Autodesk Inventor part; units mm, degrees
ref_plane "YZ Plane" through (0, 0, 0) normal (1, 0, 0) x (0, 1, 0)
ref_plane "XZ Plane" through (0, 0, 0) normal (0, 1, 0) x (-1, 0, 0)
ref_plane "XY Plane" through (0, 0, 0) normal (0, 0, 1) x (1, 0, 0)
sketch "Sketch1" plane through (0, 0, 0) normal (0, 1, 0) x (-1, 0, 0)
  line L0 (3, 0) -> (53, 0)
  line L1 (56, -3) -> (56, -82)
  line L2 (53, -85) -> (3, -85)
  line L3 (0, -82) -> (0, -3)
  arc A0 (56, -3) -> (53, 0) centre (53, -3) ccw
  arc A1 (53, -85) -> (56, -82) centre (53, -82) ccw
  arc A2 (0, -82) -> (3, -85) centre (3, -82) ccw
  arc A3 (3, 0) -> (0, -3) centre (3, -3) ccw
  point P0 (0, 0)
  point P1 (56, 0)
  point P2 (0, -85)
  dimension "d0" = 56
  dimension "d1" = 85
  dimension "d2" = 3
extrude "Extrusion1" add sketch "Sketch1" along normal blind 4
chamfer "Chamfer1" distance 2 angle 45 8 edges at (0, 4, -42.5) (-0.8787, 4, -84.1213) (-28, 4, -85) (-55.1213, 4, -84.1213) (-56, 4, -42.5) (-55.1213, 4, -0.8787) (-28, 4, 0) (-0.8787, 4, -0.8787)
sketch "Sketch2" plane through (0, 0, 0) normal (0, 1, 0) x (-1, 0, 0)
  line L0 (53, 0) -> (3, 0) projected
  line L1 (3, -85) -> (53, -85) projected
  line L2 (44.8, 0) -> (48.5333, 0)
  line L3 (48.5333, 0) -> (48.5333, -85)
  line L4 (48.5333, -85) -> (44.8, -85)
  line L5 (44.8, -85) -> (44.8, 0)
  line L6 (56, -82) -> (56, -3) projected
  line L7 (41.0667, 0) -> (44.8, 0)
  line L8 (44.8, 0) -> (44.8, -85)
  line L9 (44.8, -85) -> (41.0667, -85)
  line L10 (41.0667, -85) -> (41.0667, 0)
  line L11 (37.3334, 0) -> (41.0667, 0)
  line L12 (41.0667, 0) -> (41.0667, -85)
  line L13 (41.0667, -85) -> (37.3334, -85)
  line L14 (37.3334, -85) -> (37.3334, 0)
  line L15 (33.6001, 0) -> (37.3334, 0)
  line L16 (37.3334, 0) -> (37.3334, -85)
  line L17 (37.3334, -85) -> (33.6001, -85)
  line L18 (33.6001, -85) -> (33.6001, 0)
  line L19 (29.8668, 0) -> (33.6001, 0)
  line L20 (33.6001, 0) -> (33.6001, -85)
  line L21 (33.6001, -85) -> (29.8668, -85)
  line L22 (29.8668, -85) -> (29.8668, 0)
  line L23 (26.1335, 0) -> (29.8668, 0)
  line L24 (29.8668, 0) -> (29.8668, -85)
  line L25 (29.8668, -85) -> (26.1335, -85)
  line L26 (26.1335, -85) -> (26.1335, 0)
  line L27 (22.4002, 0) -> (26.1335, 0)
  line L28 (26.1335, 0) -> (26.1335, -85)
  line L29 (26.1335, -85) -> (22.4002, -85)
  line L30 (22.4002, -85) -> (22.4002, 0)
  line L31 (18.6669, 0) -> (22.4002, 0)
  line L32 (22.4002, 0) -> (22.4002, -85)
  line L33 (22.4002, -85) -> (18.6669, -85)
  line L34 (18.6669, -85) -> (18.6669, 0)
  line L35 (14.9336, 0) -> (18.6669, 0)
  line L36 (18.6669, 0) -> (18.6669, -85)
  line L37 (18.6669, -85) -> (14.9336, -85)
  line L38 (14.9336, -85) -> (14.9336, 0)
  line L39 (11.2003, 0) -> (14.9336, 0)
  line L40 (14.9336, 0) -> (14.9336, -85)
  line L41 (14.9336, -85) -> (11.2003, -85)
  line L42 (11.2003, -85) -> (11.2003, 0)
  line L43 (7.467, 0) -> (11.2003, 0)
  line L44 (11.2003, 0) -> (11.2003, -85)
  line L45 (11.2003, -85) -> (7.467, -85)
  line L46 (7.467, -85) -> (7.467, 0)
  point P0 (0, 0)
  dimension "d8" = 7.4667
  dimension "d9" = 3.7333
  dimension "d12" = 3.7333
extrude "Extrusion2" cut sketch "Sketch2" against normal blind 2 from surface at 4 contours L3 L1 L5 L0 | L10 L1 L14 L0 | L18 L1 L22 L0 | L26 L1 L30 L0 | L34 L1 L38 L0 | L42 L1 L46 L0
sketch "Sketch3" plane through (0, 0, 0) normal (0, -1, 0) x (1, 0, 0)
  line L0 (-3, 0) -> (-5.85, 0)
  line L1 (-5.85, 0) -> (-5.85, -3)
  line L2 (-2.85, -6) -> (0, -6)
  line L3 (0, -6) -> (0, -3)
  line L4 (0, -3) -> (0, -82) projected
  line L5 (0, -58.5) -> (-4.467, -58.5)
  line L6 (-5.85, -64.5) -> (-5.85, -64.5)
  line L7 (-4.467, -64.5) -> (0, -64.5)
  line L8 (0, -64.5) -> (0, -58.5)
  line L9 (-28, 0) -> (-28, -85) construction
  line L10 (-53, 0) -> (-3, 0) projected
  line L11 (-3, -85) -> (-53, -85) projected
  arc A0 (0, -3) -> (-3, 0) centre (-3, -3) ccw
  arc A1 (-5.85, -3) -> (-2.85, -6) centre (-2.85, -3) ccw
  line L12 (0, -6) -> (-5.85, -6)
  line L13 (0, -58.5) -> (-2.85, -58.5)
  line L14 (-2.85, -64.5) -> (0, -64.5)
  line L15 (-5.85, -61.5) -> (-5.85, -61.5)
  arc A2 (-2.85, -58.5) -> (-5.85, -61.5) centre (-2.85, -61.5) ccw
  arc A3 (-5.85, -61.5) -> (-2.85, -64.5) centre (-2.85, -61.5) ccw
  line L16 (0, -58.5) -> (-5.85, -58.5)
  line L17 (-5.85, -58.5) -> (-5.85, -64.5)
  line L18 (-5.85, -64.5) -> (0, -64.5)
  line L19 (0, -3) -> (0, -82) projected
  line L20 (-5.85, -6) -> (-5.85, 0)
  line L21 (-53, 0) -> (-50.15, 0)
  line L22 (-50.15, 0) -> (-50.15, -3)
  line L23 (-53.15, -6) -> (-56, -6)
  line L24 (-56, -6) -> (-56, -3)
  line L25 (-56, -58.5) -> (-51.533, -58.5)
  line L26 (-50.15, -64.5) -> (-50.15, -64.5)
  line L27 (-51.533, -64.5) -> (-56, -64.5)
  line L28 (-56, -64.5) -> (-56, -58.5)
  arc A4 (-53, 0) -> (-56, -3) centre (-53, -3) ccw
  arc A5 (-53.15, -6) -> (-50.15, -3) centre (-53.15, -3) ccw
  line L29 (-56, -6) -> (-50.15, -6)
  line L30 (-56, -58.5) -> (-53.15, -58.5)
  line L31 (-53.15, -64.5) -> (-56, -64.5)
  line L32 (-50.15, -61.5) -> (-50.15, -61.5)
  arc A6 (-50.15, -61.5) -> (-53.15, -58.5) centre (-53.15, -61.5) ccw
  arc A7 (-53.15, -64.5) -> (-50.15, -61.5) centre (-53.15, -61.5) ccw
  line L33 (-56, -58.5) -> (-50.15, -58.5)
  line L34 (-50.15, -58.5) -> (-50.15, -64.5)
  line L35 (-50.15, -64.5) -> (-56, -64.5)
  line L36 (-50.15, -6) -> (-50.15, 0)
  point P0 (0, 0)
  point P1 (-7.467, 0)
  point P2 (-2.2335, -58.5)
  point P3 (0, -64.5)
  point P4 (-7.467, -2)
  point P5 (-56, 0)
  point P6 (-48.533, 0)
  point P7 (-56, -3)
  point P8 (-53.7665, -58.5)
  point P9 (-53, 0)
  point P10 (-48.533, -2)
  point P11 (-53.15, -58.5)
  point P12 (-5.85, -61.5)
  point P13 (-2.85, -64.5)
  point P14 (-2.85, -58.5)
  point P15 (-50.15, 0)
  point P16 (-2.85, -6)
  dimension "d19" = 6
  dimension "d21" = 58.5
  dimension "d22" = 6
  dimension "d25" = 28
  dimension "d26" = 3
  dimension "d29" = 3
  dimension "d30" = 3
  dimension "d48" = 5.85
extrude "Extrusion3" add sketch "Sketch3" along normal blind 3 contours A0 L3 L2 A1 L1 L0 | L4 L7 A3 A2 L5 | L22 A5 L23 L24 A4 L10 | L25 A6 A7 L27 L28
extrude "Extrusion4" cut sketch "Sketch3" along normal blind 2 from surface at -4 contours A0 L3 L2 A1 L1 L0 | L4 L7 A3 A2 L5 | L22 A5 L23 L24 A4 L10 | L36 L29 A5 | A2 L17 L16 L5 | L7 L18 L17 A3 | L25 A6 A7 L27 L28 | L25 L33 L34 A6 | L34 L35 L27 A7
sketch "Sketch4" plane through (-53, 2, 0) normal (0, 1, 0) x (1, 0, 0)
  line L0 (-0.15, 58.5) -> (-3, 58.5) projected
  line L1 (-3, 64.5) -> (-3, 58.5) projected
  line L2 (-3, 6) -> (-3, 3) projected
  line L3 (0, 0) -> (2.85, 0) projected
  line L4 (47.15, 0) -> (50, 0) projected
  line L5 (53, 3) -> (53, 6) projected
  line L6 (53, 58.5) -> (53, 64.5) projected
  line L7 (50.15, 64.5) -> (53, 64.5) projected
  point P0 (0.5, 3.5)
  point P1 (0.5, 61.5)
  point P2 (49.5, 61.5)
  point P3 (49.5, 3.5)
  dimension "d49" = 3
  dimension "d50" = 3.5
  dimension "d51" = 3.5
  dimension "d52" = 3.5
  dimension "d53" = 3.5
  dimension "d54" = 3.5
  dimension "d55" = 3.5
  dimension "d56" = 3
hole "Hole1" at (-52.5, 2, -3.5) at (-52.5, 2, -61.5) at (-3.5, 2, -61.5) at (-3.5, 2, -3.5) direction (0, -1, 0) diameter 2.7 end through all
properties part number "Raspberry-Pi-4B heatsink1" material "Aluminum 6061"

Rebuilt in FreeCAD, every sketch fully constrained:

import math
import FreeCAD as App
import Part
import Sketcher
from FreeCAD import Vector
Q = App.Units.Quantity


def edges_at(feature, points):
    """Names of the edges that pass closest to the given points."""
    edges = feature.Shape.Edges
    near = lambda p: min(range(len(edges)), key=lambda i: edges[i].distToShape(Part.Vertex(*p))[0])
    return sorted({f"Edge{near(p) + 1}" for p in points})


def add_polygon(sketch, points):
    """Adds a closed chain of lines whose ends are joined by coincident constraints."""
    first, n = sketch.GeometryCount, len(points)
    for a, b in zip(points, points[1:] + points[:1]):
        sketch.addGeometry(Part.LineSegment(App.Vector(*a, 0), App.Vector(*b, 0)), False)
    for i in range(n):
        sketch.addConstraint(Sketcher.Constraint("Coincident", first + i, 2, first + (i + 1) % n, 1))

doc = App.newDocument("Part")
body = doc.addObject("PartDesign::Body", "Body")

sketch1 = doc.addObject("Sketcher::SketchObject", "Sketch")
body.addObject(sketch1)
sketch1.AttachmentSupport = (doc.XZ_Plane, [""])
sketch1.MapMode = "FlatFace"
sketch1.addGeometry(Part.LineSegment(Vector(-53, 0, 0), Vector(-3, 0, 0)), False)
sketch1.addGeometry(Part.ArcOfCircle(Part.Circle(Vector(-3, -3, 0), Vector(0, 0, 1), 3), math.radians(0), math.radians(90)), False)
sketch1.addGeometry(Part.LineSegment(Vector(0, -3, 0), Vector(0, -82, 0)), False)
sketch1.addGeometry(Part.ArcOfCircle(Part.Circle(Vector(-3, -82, 0), Vector(0, 0, 1), 3), math.radians(-90), math.radians(0)), False)
sketch1.addGeometry(Part.LineSegment(Vector(-3, -85, 0), Vector(-53, -85, 0)), False)
sketch1.addGeometry(Part.ArcOfCircle(Part.Circle(Vector(-53, -82, 0), Vector(0, 0, 1), 3), math.radians(180), math.radians(270)), False)
sketch1.addGeometry(Part.LineSegment(Vector(-56, -82, 0), Vector(-56, -3, 0)), False)
sketch1.addGeometry(Part.ArcOfCircle(Part.Circle(Vector(-53, -3, 0), Vector(0, 0, 1), 3), math.radians(90), math.radians(180)), False)
sketch1.addConstraint(Sketcher.Constraint("Tangent", 0, 2, 1, 2))
sketch1.addConstraint(Sketcher.Constraint("Tangent", 1, 1, 2, 1))
sketch1.addConstraint(Sketcher.Constraint("Tangent", 2, 2, 3, 2))
sketch1.addConstraint(Sketcher.Constraint("Tangent", 3, 1, 4, 1))
sketch1.addConstraint(Sketcher.Constraint("Tangent", 4, 2, 5, 2))
sketch1.addConstraint(Sketcher.Constraint("Tangent", 5, 1, 6, 1))
sketch1.addConstraint(Sketcher.Constraint("Tangent", 6, 2, 7, 2))
sketch1.addConstraint(Sketcher.Constraint("Tangent", 7, 1, 0, 1))
sketch1.addConstraint(Sketcher.Constraint("Horizontal", 0))
sketch1.addConstraint(Sketcher.Constraint("Vertical", 2))
sketch1.addConstraint(Sketcher.Constraint("Horizontal", 4))
sketch1.addConstraint(Sketcher.Constraint("Vertical", 6))
sketch1.addConstraint(Sketcher.Constraint("Equal", 1, 3))
sketch1.addConstraint(Sketcher.Constraint("Equal", 3, 5))
sketch1.addConstraint(Sketcher.Constraint("Equal", 5, 7))
sketch1.addConstraint(Sketcher.Constraint("PointOnObject", 0, 2, -1))
sketch1.addConstraint(Sketcher.Constraint("PointOnObject", 1, 1, -2))
sketch1.addConstraint(Sketcher.Constraint("Radius", 1, Q("3 mm")))
sketch1.addConstraint(Sketcher.Constraint("DistanceY", 3, 1, -1, 1, Q("85 mm")))
sketch1.addConstraint(Sketcher.Constraint("DistanceX", 5, 1, -1, 1, Q("56 mm")))
pad1 = doc.addObject("PartDesign::Pad", "Pad")
body.addObject(pad1)
pad1.Profile = sketch1
pad1.Length = 4
pad1.Reversed = True
doc.recompute()

chamfer = doc.addObject("PartDesign::Chamfer", "Chamfer")
body.addObject(chamfer)
chamfer.Base = (pad1, edges_at(pad1, [
    (0, 4, -42.5),
    (-0.879, 4, -84.121),
    (-28, 4, -85),
    (-55.121, 4, -84.121),
    (-56, 4, -42.5),
    (-55.121, 4, -0.879),
    (-28, 4, 0),
    (-0.879, 4, -0.879),
]))
chamfer.Size = 2

sketch2 = doc.addObject("Sketcher::SketchObject", "Sketch001")
body.addObject(sketch2)
sketch2.AttachmentSupport = (doc.XZ_Plane, [""])
sketch2.MapMode = "FlatFace"
sketch2.AttachmentOffset = App.Placement(Vector(0, 0, -4), App.Rotation())
add_polygon(sketch2, [(-48.5, -85), (-48.5, 0), (-44.8, 0), (-44.8, -85)])
add_polygon(sketch2, [(-41.1, -85), (-41.1, 0), (-37.3, 0), (-37.3, -85)])
add_polygon(sketch2, [(-33.6, -85), (-33.6, 0), (-29.9, 0), (-29.9, -85)])
add_polygon(sketch2, [(-26.1, -85), (-26.1, 0), (-22.4, 0), (-22.4, -85)])
add_polygon(sketch2, [(-18.7, -85), (-18.7, 0), (-14.9, 0), (-14.9, -85)])
add_polygon(sketch2, [(-11.2, -85), (-11.2, 0), (-7.5, 0), (-7.5, -85)])
sketch2.addConstraint(Sketcher.Constraint("Vertical", 0))
sketch2.addConstraint(Sketcher.Constraint("Horizontal", 1))
sketch2.addConstraint(Sketcher.Constraint("Vertical", 2))
sketch2.addConstraint(Sketcher.Constraint("Horizontal", 3))
sketch2.addConstraint(Sketcher.Constraint("Vertical", 4))
sketch2.addConstraint(Sketcher.Constraint("Horizontal", 5))
sketch2.addConstraint(Sketcher.Constraint("Vertical", 6))
sketch2.addConstraint(Sketcher.Constraint("Horizontal", 7))
sketch2.addConstraint(Sketcher.Constraint("Vertical", 8))
sketch2.addConstraint(Sketcher.Constraint("Horizontal", 9))
sketch2.addConstraint(Sketcher.Constraint("Vertical", 10))
sketch2.addConstraint(Sketcher.Constraint("Horizontal", 11))
sketch2.addConstraint(Sketcher.Constraint("Vertical", 12))
sketch2.addConstraint(Sketcher.Constraint("Horizontal", 13))
sketch2.addConstraint(Sketcher.Constraint("Vertical", 14))
sketch2.addConstraint(Sketcher.Constraint("Horizontal", 15))
sketch2.addConstraint(Sketcher.Constraint("Vertical", 16))
sketch2.addConstraint(Sketcher.Constraint("Horizontal", 17))
sketch2.addConstraint(Sketcher.Constraint("Vertical", 18))
sketch2.addConstraint(Sketcher.Constraint("Horizontal", 19))
sketch2.addConstraint(Sketcher.Constraint("Vertical", 20))
sketch2.addConstraint(Sketcher.Constraint("Horizontal", 21))
sketch2.addConstraint(Sketcher.Constraint("Vertical", 22))
sketch2.addConstraint(Sketcher.Constraint("Horizontal", 23))
sketch2.addConstraint(Sketcher.Constraint("PointOnObject", 0, 2, -1))
sketch2.addConstraint(Sketcher.Constraint("PointOnObject", 4, 2, -1))
sketch2.addConstraint(Sketcher.Constraint("PointOnObject", 8, 2, -1))
sketch2.addConstraint(Sketcher.Constraint("PointOnObject", 12, 2, -1))
sketch2.addConstraint(Sketcher.Constraint("PointOnObject", 16, 2, -1))
sketch2.addConstraint(Sketcher.Constraint("PointOnObject", 20, 2, -1))
sketch2.addConstraint(Sketcher.Constraint("Horizontal", 3, 2, 6, 2))
sketch2.addConstraint(Sketcher.Constraint("Horizontal", 7, 2, 10, 2))
sketch2.addConstraint(Sketcher.Constraint("Horizontal", 11, 2, 14, 2))
sketch2.addConstraint(Sketcher.Constraint("Horizontal", 15, 2, 18, 2))
sketch2.addConstraint(Sketcher.Constraint("Horizontal", 19, 2, 22, 2))
sketch2.addConstraint(Sketcher.Constraint("Equal", 3, 5))
sketch2.addConstraint(Sketcher.Constraint("Equal", 7, 9))
sketch2.addConstraint(Sketcher.Constraint("Equal", 11, 13))
sketch2.addConstraint(Sketcher.Constraint("Equal", 15, 17))
sketch2.addConstraint(Sketcher.Constraint("Equal", 19, 21))
sketch2.addConstraint(Sketcher.Constraint("DistanceY", 0, 1, 0, 2, Q("85 mm")))
sketch2.addConstraint(Sketcher.Constraint("DistanceX", 1, 1, 1, 2, Q("3.7333 mm")))
sketch2.addConstraint(Sketcher.Constraint("DistanceX", 21, 2, -1, 1, Q("7.467 mm")))
sketch2.addConstraint(Sketcher.Constraint("DistanceX", 1, 2, -1, 1, Q("44.8 mm")))
sketch2.addConstraint(Sketcher.Constraint("DistanceX", 8, 2, -1, 1, Q("33.6 mm")))
sketch2.addConstraint(Sketcher.Constraint("DistanceX", 1, 2, 4, 2, Q("3.7333 mm")))
sketch2.addConstraint(Sketcher.Constraint("DistanceX", 9, 2, 12, 2, Q("3.7333 mm")))
sketch2.addConstraint(Sketcher.Constraint("DistanceX", 13, 2, 16, 2, Q("3.7333 mm")))
pocket1 = doc.addObject("PartDesign::Pocket", "Pocket")
body.addObject(pocket1)
pocket1.Profile = sketch2
pocket1.Length = 2
pocket1.Reversed = True

sketch3 = doc.addObject("Sketcher::SketchObject", "Sketch002")
body.addObject(sketch3)
sketch3.AttachmentSupport = (doc.XZ_Plane, [""])
sketch3.MapMode = "FlatFace"
sketch3.addGeometry(Part.ArcOfCircle(Part.Circle(Vector(-3, -3, 0), Vector(0, 0, 1), 3), math.radians(0), math.radians(90)), False)
sketch3.addGeometry(Part.LineSegment(Vector(-3, 0, 0), Vector(-5.8, 0, 0)), False)
sketch3.addGeometry(Part.LineSegment(Vector(-5.8, 0, 0), Vector(-5.8, -3, 0)), False)
sketch3.addGeometry(Part.ArcOfCircle(Part.Circle(Vector(-2.9, -3, 0), Vector(0, 0, 1), 3), math.radians(180), math.radians(270)), False)
sketch3.addGeometry(Part.LineSegment(Vector(-2.9, -6, 0), Vector(0, -6, 0)), False)
sketch3.addGeometry(Part.LineSegment(Vector(0, -6, 0), Vector(0, -3, 0)), False)
sketch3.addGeometry(Part.LineSegment(Vector(0, -64.5, 0), Vector(0, -58.5, 0)), False)
sketch3.addGeometry(Part.LineSegment(Vector(0, -58.5, 0), Vector(-2.9, -58.5, 0)), False)
sketch3.addGeometry(Part.ArcOfCircle(Part.Circle(Vector(-2.9, -61.5, 0), Vector(0, 0, 1), 3), math.radians(90), math.radians(270)), False)
sketch3.addGeometry(Part.LineSegment(Vector(-2.9, -64.5, 0), Vector(0, -64.5, 0)), False)
sketch3.addGeometry(Part.LineSegment(Vector(-50.1, -3, 0), Vector(-50.1, 0, 0)), False)
sketch3.addGeometry(Part.LineSegment(Vector(-50.1, 0, 0), Vector(-53, 0, 0)), False)
sketch3.addGeometry(Part.ArcOfCircle(Part.Circle(Vector(-53, -3, 0), Vector(0, 0, 1), 3), math.radians(90), math.radians(180)), False)
sketch3.addGeometry(Part.LineSegment(Vector(-56, -3, 0), Vector(-56, -6, 0)), False)
sketch3.addGeometry(Part.LineSegment(Vector(-56, -6, 0), Vector(-53.1, -6, 0)), False)
sketch3.addGeometry(Part.ArcOfCircle(Part.Circle(Vector(-53.1, -3, 0), Vector(0, 0, 1), 3), math.radians(-90), math.radians(0)), False)
sketch3.addGeometry(Part.LineSegment(Vector(-53.1, -58.5, 0), Vector(-56, -58.5, 0)), False)
sketch3.addGeometry(Part.LineSegment(Vector(-56, -58.5, 0), Vector(-56, -64.5, 0)), False)
sketch3.addGeometry(Part.LineSegment(Vector(-56, -64.5, 0), Vector(-53.1, -64.5, 0)), False)
sketch3.addGeometry(Part.ArcOfCircle(Part.Circle(Vector(-53.1, -61.5, 0), Vector(0, 0, 1), 3), math.radians(-90), math.radians(90)), False)
sketch3.addConstraint(Sketcher.Constraint("Tangent", 0, 2, 1, 1))
sketch3.addConstraint(Sketcher.Constraint("Coincident", 1, 2, 2, 1))
sketch3.addConstraint(Sketcher.Constraint("Tangent", 2, 2, 3, 1))
sketch3.addConstraint(Sketcher.Constraint("Tangent", 3, 2, 4, 1))
sketch3.addConstraint(Sketcher.Constraint("Coincident", 4, 2, 5, 1))
sketch3.addConstraint(Sketcher.Constraint("Tangent", 5, 2, 0, 1))
sketch3.addConstraint(Sketcher.Constraint("Coincident", 6, 2, 7, 1))
sketch3.addConstraint(Sketcher.Constraint("Tangent", 7, 2, 8, 1))
sketch3.addConstraint(Sketcher.Constraint("Tangent", 8, 2, 9, 1))
sketch3.addConstraint(Sketcher.Constraint("Coincident", 9, 2, 6, 1))
sketch3.addConstraint(Sketcher.Constraint("Coincident", 10, 2, 11, 1))
sketch3.addConstraint(Sketcher.Constraint("Tangent", 11, 2, 12, 1))
sketch3.addConstraint(Sketcher.Constraint("Tangent", 12, 2, 13, 1))
sketch3.addConstraint(Sketcher.Constraint("Coincident", 13, 2, 14, 1))
sketch3.addConstraint(Sketcher.Constraint("Tangent", 14, 2, 15, 1))
sketch3.addConstraint(Sketcher.Constraint("Tangent", 15, 2, 10, 1))
sketch3.addConstraint(Sketcher.Constraint("Coincident", 16, 2, 17, 1))
sketch3.addConstraint(Sketcher.Constraint("Coincident", 17, 2, 18, 1))
sketch3.addConstraint(Sketcher.Constraint("Tangent", 18, 2, 19, 1))
sketch3.addConstraint(Sketcher.Constraint("Tangent", 19, 2, 16, 1))
sketch3.addConstraint(Sketcher.Constraint("Horizontal", 1))
sketch3.addConstraint(Sketcher.Constraint("Vertical", 2))
sketch3.addConstraint(Sketcher.Constraint("Horizontal", 4))
sketch3.addConstraint(Sketcher.Constraint("Vertical", 5))
sketch3.addConstraint(Sketcher.Constraint("Vertical", 6))
sketch3.addConstraint(Sketcher.Constraint("Horizontal", 7))
sketch3.addConstraint(Sketcher.Constraint("Horizontal", 9))
sketch3.addConstraint(Sketcher.Constraint("Vertical", 10))
sketch3.addConstraint(Sketcher.Constraint("Horizontal", 11))
sketch3.addConstraint(Sketcher.Constraint("Vertical", 13))
sketch3.addConstraint(Sketcher.Constraint("Horizontal", 14))
sketch3.addConstraint(Sketcher.Constraint("Horizontal", 16))
sketch3.addConstraint(Sketcher.Constraint("Vertical", 17))
sketch3.addConstraint(Sketcher.Constraint("Horizontal", 18))
sketch3.addConstraint(Sketcher.Constraint("Equal", 0, 3))
sketch3.addConstraint(Sketcher.Constraint("Equal", 3, 8))
sketch3.addConstraint(Sketcher.Constraint("Equal", 8, 12))
sketch3.addConstraint(Sketcher.Constraint("Equal", 12, 15))
sketch3.addConstraint(Sketcher.Constraint("Equal", 15, 19))
sketch3.addConstraint(Sketcher.Constraint("PointOnObject", 0, 2, -1))
sketch3.addConstraint(Sketcher.Constraint("PointOnObject", 4, 2, -2))
sketch3.addConstraint(Sketcher.Constraint("PointOnObject", 6, 2, -2))
sketch3.addConstraint(Sketcher.Constraint("PointOnObject", 10, 2, -1))
sketch3.addConstraint(Sketcher.Constraint("Horizontal", 0, 3, 3, 3))
sketch3.addConstraint(Sketcher.Constraint("Horizontal", 12, 3, 15, 3))
sketch3.addConstraint(Sketcher.Constraint("Horizontal", 8, 3, 19, 3))
sketch3.addConstraint(Sketcher.Constraint("Vertical", 3, 3, 8, 3))
sketch3.addConstraint(Sketcher.Constraint("Vertical", 15, 3, 19, 3))
sketch3.addConstraint(Sketcher.Constraint("Vertical", 13, 2, 16, 2))
sketch3.addConstraint(Sketcher.Constraint("Equal", 9, 11))
sketch3.addConstraint(Sketcher.Constraint("Radius", 0, Q("3 mm")))
sketch3.addConstraint(Sketcher.Constraint("DistanceY", 6, 2, -1, 1, Q("58.5 mm")))
sketch3.addConstraint(Sketcher.Constraint("DistanceX", 1, 2, -1, 1, Q("5.85 mm")))
sketch3.addConstraint(Sketcher.Constraint("DistanceX", 12, 3, -1, 1, Q("53 mm")))
pad2 = doc.addObject("PartDesign::Pad", "Pad001")
body.addObject(pad2)
pad2.Profile = sketch3
pad2.Length = 3

sketch4 = doc.addObject("Sketcher::SketchObject", "Sketch003")
body.addObject(sketch4)
sketch4.AttachmentSupport = (doc.XZ_Plane, [""])
sketch4.MapMode = "FlatFace"
sketch4.AttachmentOffset = App.Placement(Vector(0, 0, -4), App.Rotation())
sketch4.addGeometry(Part.ArcOfCircle(Part.Circle(Vector(-3, -3, 0), Vector(0, 0, 1), 3), math.radians(0), math.radians(90)), False)
sketch4.addGeometry(Part.LineSegment(Vector(-3, 0, 0), Vector(-5.8, 0, 0)), False)
sketch4.addGeometry(Part.LineSegment(Vector(-5.8, 0, 0), Vector(-5.8, -3, 0)), False)
sketch4.addGeometry(Part.ArcOfCircle(Part.Circle(Vector(-2.9, -3, 0), Vector(0, 0, 1), 3), math.radians(180), math.radians(270)), False)
sketch4.addGeometry(Part.LineSegment(Vector(-2.9, -6, 0), Vector(0, -6, 0)), False)
sketch4.addGeometry(Part.LineSegment(Vector(0, -6, 0), Vector(0, -3, 0)), False)
add_polygon(sketch4, [(0, -64.5), (0, -58.5), (-5.8, -58.5), (-5.8, -64.5)])
sketch4.addGeometry(Part.LineSegment(Vector(-50.1, 0, 0), Vector(-53, 0, 0)), False)
sketch4.addGeometry(Part.ArcOfCircle(Part.Circle(Vector(-53, -3, 0), Vector(0, 0, 1), 3), math.radians(90), math.radians(180)), False)
sketch4.addGeometry(Part.LineSegment(Vector(-56, -3, 0), Vector(-56, -6, 0)), False)
sketch4.addGeometry(Part.LineSegment(Vector(-56, -6, 0), Vector(-50.1, -6, 0)), False)
sketch4.addGeometry(Part.LineSegment(Vector(-50.1, -6, 0), Vector(-50.1, 0, 0)), False)
add_polygon(sketch4, [(-56, -58.5), (-56, -64.5), (-50.1, -64.5), (-50.1, -58.5)])
sketch4.addConstraint(Sketcher.Constraint("Tangent", 0, 2, 1, 1))
sketch4.addConstraint(Sketcher.Constraint("Coincident", 1, 2, 2, 1))
sketch4.addConstraint(Sketcher.Constraint("Tangent", 2, 2, 3, 1))
sketch4.addConstraint(Sketcher.Constraint("Tangent", 3, 2, 4, 1))
sketch4.addConstraint(Sketcher.Constraint("Coincident", 4, 2, 5, 1))
sketch4.addConstraint(Sketcher.Constraint("Tangent", 5, 2, 0, 1))
sketch4.addConstraint(Sketcher.Constraint("Tangent", 10, 2, 11, 1))
sketch4.addConstraint(Sketcher.Constraint("Tangent", 11, 2, 12, 1))
sketch4.addConstraint(Sketcher.Constraint("Coincident", 12, 2, 13, 1))
sketch4.addConstraint(Sketcher.Constraint("Coincident", 13, 2, 14, 1))
sketch4.addConstraint(Sketcher.Constraint("Coincident", 14, 2, 10, 1))
sketch4.addConstraint(Sketcher.Constraint("Horizontal", 1))
sketch4.addConstraint(Sketcher.Constraint("Vertical", 2))
sketch4.addConstraint(Sketcher.Constraint("Horizontal", 4))
sketch4.addConstraint(Sketcher.Constraint("Vertical", 5))
sketch4.addConstraint(Sketcher.Constraint("Vertical", 6))
sketch4.addConstraint(Sketcher.Constraint("Horizontal", 7))
sketch4.addConstraint(Sketcher.Constraint("Vertical", 8))
sketch4.addConstraint(Sketcher.Constraint("Horizontal", 9))
sketch4.addConstraint(Sketcher.Constraint("Horizontal", 10))
sketch4.addConstraint(Sketcher.Constraint("Vertical", 12))
sketch4.addConstraint(Sketcher.Constraint("Horizontal", 13))
sketch4.addConstraint(Sketcher.Constraint("Vertical", 14))
sketch4.addConstraint(Sketcher.Constraint("Vertical", 15))
sketch4.addConstraint(Sketcher.Constraint("Horizontal", 16))
sketch4.addConstraint(Sketcher.Constraint("Vertical", 17))
sketch4.addConstraint(Sketcher.Constraint("Horizontal", 18))
sketch4.addConstraint(Sketcher.Constraint("Equal", 0, 3))
sketch4.addConstraint(Sketcher.Constraint("Equal", 3, 11))
sketch4.addConstraint(Sketcher.Constraint("PointOnObject", 0, 2, -1))
sketch4.addConstraint(Sketcher.Constraint("PointOnObject", 4, 2, -2))
sketch4.addConstraint(Sketcher.Constraint("PointOnObject", 6, 2, -2))
sketch4.addConstraint(Sketcher.Constraint("PointOnObject", 10, 2, -1))
sketch4.addConstraint(Sketcher.Constraint("Horizontal", 0, 3, 3, 3))
sketch4.addConstraint(Sketcher.Constraint("Horizontal", 4, 2, 12, 2))
sketch4.addConstraint(Sketcher.Constraint("Horizontal", 9, 2, 15, 2))
sketch4.addConstraint(Sketcher.Constraint("Horizontal", 7, 2, 17, 2))
sketch4.addConstraint(Sketcher.Constraint("Vertical", 2, 2, 7, 2))
sketch4.addConstraint(Sketcher.Constraint("Vertical", 12, 2, 15, 2))
sketch4.addConstraint(Sketcher.Constraint("Vertical", 14, 2, 16, 2))
sketch4.addConstraint(Sketcher.Constraint("Equal", 4, 10))
sketch4.addConstraint(Sketcher.Constraint("Equal", 8, 14))
sketch4.addConstraint(Sketcher.Constraint("Radius", 0, Q("3 mm")))
sketch4.addConstraint(Sketcher.Constraint("DistanceX", 7, 2, 7, 1, Q("5.85 mm")))
sketch4.addConstraint(Sketcher.Constraint("DistanceY", 6, 2, -1, 1, Q("58.5 mm")))
sketch4.addConstraint(Sketcher.Constraint("DistanceX", 11, 3, -1, 1, Q("53 mm")))
pocket2 = doc.addObject("PartDesign::Pocket", "Pocket001")
body.addObject(pocket2)
pocket2.Profile = sketch4
pocket2.Length = 2
pocket2.Reversed = True

sketch5 = doc.addObject("Sketcher::SketchObject", "Sketch004")
body.addObject(sketch5)
sketch5.AttachmentSupport = (doc.XZ_Plane, [""])
sketch5.MapMode = "FlatFace"
sketch5.AttachmentOffset = App.Placement(Vector(0, 0, -2), App.Rotation())
sketch5.addGeometry(Part.Circle(Vector(-52.5, -3.5, 0), Vector(0, 0, 1), 1.4), False)
sketch5.addGeometry(Part.Circle(Vector(-52.5, -61.5, 0), Vector(0, 0, 1), 1.4), False)
sketch5.addGeometry(Part.Circle(Vector(-3.5, -61.5, 0), Vector(0, 0, 1), 1.4), False)
sketch5.addGeometry(Part.Circle(Vector(-3.5, -3.5, 0), Vector(0, 0, 1), 1.4), False)
sketch5.addConstraint(Sketcher.Constraint("Equal", 0, 1))
sketch5.addConstraint(Sketcher.Constraint("Equal", 1, 2))
sketch5.addConstraint(Sketcher.Constraint("Equal", 2, 3))
sketch5.addConstraint(Sketcher.Constraint("Horizontal", 1, 3, 2, 3))
sketch5.addConstraint(Sketcher.Constraint("Horizontal", 0, 3, 3, 3))
sketch5.addConstraint(Sketcher.Constraint("Vertical", 0, 3, 1, 3))
sketch5.addConstraint(Sketcher.Constraint("Vertical", 2, 3, 3, 3))
sketch5.addConstraint(Sketcher.Constraint("Diameter", 0, Q("2.7 mm")))
sketch5.addConstraint(Sketcher.Constraint("DistanceY", 1, 3, 0, 3, Q("58 mm")))
sketch5.addConstraint(Sketcher.Constraint("DistanceX", 1, 3, 2, 3, Q("49 mm")))
sketch5.addConstraint(Sketcher.Constraint("DistanceX", 0, 3, -1, 1, Q("52.5 mm")))
sketch5.addConstraint(Sketcher.Constraint("DistanceY", 0, 3, -1, 1, Q("3.5 mm")))
doc.recompute()
hole = doc.addObject("PartDesign::Hole", "Hole")
body.addObject(hole)
hole.Profile = sketch5
hole.ThreadType = "None"
hole.Diameter = 2.7
hole.DepthType = "ThroughAll"
hole.Reversed = True

doc.recompute()
